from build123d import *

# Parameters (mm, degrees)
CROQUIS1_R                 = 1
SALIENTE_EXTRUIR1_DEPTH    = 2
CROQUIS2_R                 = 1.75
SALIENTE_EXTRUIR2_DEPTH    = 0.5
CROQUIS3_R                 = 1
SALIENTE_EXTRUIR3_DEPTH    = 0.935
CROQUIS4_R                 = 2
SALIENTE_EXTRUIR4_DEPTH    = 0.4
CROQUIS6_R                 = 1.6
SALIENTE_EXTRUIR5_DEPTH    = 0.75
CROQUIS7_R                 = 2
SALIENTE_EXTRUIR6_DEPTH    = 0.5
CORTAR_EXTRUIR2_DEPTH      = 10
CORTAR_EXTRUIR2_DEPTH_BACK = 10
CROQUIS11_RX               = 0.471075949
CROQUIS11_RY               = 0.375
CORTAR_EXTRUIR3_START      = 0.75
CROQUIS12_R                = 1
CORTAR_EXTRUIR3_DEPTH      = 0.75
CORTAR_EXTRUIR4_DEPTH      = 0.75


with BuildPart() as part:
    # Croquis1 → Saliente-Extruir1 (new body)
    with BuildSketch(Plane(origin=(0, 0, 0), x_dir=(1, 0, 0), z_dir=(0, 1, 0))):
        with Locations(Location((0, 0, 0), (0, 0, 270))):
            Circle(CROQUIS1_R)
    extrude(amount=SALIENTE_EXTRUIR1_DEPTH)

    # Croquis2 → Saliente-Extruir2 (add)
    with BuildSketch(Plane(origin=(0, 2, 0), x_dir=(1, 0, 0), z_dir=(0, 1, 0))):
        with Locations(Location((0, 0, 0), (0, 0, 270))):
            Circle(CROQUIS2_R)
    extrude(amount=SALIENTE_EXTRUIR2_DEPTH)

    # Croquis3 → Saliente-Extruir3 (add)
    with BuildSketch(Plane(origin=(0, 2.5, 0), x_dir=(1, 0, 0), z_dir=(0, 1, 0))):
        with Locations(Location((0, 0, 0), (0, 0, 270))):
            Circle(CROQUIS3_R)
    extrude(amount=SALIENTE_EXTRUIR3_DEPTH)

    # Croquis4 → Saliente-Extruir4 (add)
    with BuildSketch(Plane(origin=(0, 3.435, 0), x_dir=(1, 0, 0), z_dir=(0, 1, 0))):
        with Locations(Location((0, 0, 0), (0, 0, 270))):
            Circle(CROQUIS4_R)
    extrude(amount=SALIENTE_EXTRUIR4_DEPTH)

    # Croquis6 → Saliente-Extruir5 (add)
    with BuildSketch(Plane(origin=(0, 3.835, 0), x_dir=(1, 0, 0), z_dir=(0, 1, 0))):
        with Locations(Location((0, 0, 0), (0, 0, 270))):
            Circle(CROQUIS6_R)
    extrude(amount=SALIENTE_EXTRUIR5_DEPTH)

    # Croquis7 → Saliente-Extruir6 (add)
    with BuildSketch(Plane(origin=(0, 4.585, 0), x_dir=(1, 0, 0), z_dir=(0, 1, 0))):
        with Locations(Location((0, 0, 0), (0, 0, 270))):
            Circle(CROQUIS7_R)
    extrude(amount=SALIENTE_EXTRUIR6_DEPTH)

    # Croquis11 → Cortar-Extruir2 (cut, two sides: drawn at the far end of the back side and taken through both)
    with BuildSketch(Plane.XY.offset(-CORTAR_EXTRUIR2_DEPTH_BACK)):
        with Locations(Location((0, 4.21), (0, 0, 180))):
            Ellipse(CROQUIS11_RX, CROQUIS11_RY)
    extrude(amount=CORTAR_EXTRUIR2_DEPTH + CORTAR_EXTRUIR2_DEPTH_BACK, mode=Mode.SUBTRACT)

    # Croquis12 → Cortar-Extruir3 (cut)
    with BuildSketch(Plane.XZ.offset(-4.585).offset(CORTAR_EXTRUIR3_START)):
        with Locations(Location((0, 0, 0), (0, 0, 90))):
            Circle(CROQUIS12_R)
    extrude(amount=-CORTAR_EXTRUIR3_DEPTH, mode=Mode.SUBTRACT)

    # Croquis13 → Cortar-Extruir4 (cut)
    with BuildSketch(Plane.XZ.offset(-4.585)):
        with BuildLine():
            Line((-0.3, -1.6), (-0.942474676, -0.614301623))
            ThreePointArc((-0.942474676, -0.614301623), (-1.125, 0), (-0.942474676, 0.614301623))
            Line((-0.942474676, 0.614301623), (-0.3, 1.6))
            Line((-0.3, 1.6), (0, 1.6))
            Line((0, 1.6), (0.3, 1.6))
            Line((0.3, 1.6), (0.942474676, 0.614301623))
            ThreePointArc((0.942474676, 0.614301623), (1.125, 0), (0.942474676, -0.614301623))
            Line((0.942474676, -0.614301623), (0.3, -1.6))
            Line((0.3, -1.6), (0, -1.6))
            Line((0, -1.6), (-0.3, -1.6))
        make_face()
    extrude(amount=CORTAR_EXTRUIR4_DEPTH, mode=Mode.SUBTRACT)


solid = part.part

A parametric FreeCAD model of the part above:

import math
import FreeCAD as App
import Part
import Sketcher

V = App.Vector

doc = App.newDocument("Part")
params = doc.addObject("Spreadsheet::Sheet", "Params")
for row, (alias, value) in enumerate([
    ("sketch1_diameter", "2 mm"),
    ("pad1_length", "2 mm"),
    ("sketch2_diameter", "3.5 mm"),
    ("pad2_length", "0.5 mm"),
    ("sketch3_diameter", "2 mm"),
    ("pad3_length", "0.935 mm"),
    ("sketch4_diameter", "4 mm"),
    ("pad4_length", "0.4 mm"),
    ("sketch5_diameter", "3.2 mm"),
    ("pad5_length", "0.75 mm"),
    ("sketch6_diameter", "4 mm"),
    ("pad6_length", "0.5 mm"),
    ("sketch8_diameter", "2 mm"),
    ("pocket2_length", "0.75 mm"),
    ("sketch9_width", "0.6 mm"),
    ("pocket3_length", "0.75 mm"),
], start=1):
    params.set(f"A{row}", alias)
    params.set(f"B{row}", "=" + value)
    params.setAlias(f"B{row}", alias)

body = doc.addObject("PartDesign::Body", "Body")

# Sketch on XZ plane
sketch1 = doc.addObject("Sketcher::SketchObject", "Sketch")
body.addObject(sketch1)
sketch1.AttachmentSupport = (doc.XZ_Plane, [""])
sketch1.MapMode = "FlatFace"
sketch1.addGeometry(Part.Circle(V(0, 0, 0), V(0, 0, 1), 1), False)
sketch1.addConstraint(Sketcher.Constraint("Coincident", 0, 3, -1, 1))
sketch1.addConstraint(Sketcher.Constraint("Diameter", 0, 2.0))
sketch1.setExpression("Constraints[1]", "Params.sketch1_diameter")
pad1 = doc.addObject("PartDesign::Pad", "Pad")
body.addObject(pad1)
pad1.Profile = sketch1
pad1.setExpression("Length", "Params.pad1_length")
pad1.Reversed = True

# Sketch on XZ plane
sketch2 = doc.addObject("Sketcher::SketchObject", "Sketch001")
body.addObject(sketch2)
sketch2.AttachmentSupport = (doc.XZ_Plane, [""])
sketch2.MapMode = "FlatFace"
sketch2.AttachmentOffset = App.Placement(V(0, 0, -2), App.Rotation())
sketch2.addGeometry(Part.Circle(V(0, 0, 0), V(0, 0, 1), 1.8), False)
sketch2.addConstraint(Sketcher.Constraint("Coincident", 0, 3, -1, 1))
sketch2.addConstraint(Sketcher.Constraint("Diameter", 0, 3.5))
sketch2.setExpression("Constraints[1]", "Params.sketch2_diameter")
pad2 = doc.addObject("PartDesign::Pad", "Pad001")
body.addObject(pad2)
pad2.Profile = sketch2
pad2.setExpression("Length", "Params.pad2_length")
pad2.Reversed = True

# Sketch on XZ plane
sketch3 = doc.addObject("Sketcher::SketchObject", "Sketch002")
body.addObject(sketch3)
sketch3.AttachmentSupport = (doc.XZ_Plane, [""])
sketch3.MapMode = "FlatFace"
sketch3.AttachmentOffset = App.Placement(V(0, 0, -2.5), App.Rotation())
sketch3.addGeometry(Part.Circle(V(0, 0, 0), V(0, 0, 1), 1), False)
sketch3.addConstraint(Sketcher.Constraint("Coincident", 0, 3, -1, 1))
sketch3.addConstraint(Sketcher.Constraint("Diameter", 0, 2.0))
sketch3.setExpression("Constraints[1]", "Params.sketch3_diameter")
pad3 = doc.addObject("PartDesign::Pad", "Pad002")
body.addObject(pad3)
pad3.Profile = sketch3
pad3.setExpression("Length", "Params.pad3_length")
pad3.Reversed = True

# Sketch on XZ plane
sketch4 = doc.addObject("Sketcher::SketchObject", "Sketch003")
body.addObject(sketch4)
sketch4.AttachmentSupport = (doc.XZ_Plane, [""])
sketch4.MapMode = "FlatFace"
sketch4.AttachmentOffset = App.Placement(V(0, 0, -3.435), App.Rotation())
sketch4.addGeometry(Part.Circle(V(0, 0, 0), V(0, 0, 1), 2), False)
sketch4.addConstraint(Sketcher.Constraint("Coincident", 0, 3, -1, 1))
sketch4.addConstraint(Sketcher.Constraint("Diameter", 0, 4.0))
sketch4.setExpression("Constraints[1]", "Params.sketch4_diameter")
pad4 = doc.addObject("PartDesign::Pad", "Pad003")
body.addObject(pad4)
pad4.Profile = sketch4
pad4.setExpression("Length", "Params.pad4_length")
pad4.Reversed = True

# Sketch on XZ plane
sketch5 = doc.addObject("Sketcher::SketchObject", "Sketch004")
body.addObject(sketch5)
sketch5.AttachmentSupport = (doc.XZ_Plane, [""])
sketch5.MapMode = "FlatFace"
sketch5.AttachmentOffset = App.Placement(V(0, 0, -3.835), App.Rotation())
sketch5.addGeometry(Part.Circle(V(0, 0, 0), V(0, 0, 1), 1.6), False)
sketch5.addConstraint(Sketcher.Constraint("Coincident", 0, 3, -1, 1))
sketch5.addConstraint(Sketcher.Constraint("Diameter", 0, 3.2))
sketch5.setExpression("Constraints[1]", "Params.sketch5_diameter")
pad5 = doc.addObject("PartDesign::Pad", "Pad004")
body.addObject(pad5)
pad5.Profile = sketch5
pad5.setExpression("Length", "Params.pad5_length")
pad5.Reversed = True

# Sketch on XZ plane
sketch6 = doc.addObject("Sketcher::SketchObject", "Sketch005")
body.addObject(sketch6)
sketch6.AttachmentSupport = (doc.XZ_Plane, [""])
sketch6.MapMode = "FlatFace"
sketch6.AttachmentOffset = App.Placement(V(0, 0, -4.585), App.Rotation())
sketch6.addGeometry(Part.Circle(V(0, 0, 0), V(0, 0, 1), 2), False)
sketch6.addConstraint(Sketcher.Constraint("Coincident", 0, 3, -1, 1))
sketch6.addConstraint(Sketcher.Constraint("Diameter", 0, 4.0))
sketch6.setExpression("Constraints[1]", "Params.sketch6_diameter")
pad6 = doc.addObject("PartDesign::Pad", "Pad005")
body.addObject(pad6)
pad6.Profile = sketch6
pad6.setExpression("Length", "Params.pad6_length")
pad6.Reversed = True

# Sketch on XY plane
sketch7 = doc.addObject("Sketcher::SketchObject", "Sketch006")
body.addObject(sketch7)
sketch7.AttachmentSupport = (doc.XY_Plane, [""])
sketch7.MapMode = "FlatFace"
sketch7.addGeometry(Part.Ellipse(V(-0.471076, 4.21, 0), V(0, 3.835, 0), V(0, 4.21, 0)), False)
sketch7.addConstraint(Sketcher.Constraint("Block", 0))
pocket1 = doc.addObject("PartDesign::Pocket", "Pocket")
body.addObject(pocket1)
pocket1.Profile = sketch7
pocket1.Type = "ThroughAll"
pocket1.Midplane = True

# Sketch on XZ plane
sketch8 = doc.addObject("Sketcher::SketchObject", "Sketch007")
body.addObject(sketch8)
sketch8.AttachmentSupport = (doc.XZ_Plane, [""])
sketch8.MapMode = "FlatFace"
sketch8.AttachmentOffset = App.Placement(V(0, 0, -3.835), App.Rotation())
sketch8.addGeometry(Part.Circle(V(0, 0, 0), V(0, 0, 1), 1), False)
sketch8.addConstraint(Sketcher.Constraint("Coincident", 0, 3, -1, 1))
sketch8.addConstraint(Sketcher.Constraint("Diameter", 0, 2.0))
sketch8.setExpression("Constraints[1]", "Params.sketch8_diameter")
pocket2 = doc.addObject("PartDesign::Pocket", "Pocket001")
body.addObject(pocket2)
pocket2.Profile = sketch8
pocket2.setExpression("Length", "Params.pocket2_length")

# Sketch on XZ plane
sketch9 = doc.addObject("Sketcher::SketchObject", "Sketch008")
body.addObject(sketch9)
sketch9.AttachmentSupport = (doc.XZ_Plane, [""])
sketch9.MapMode = "FlatFace"
sketch9.AttachmentOffset = App.Placement(V(0, 0, -4.585), App.Rotation())
sketch9.addGeometry(Part.LineSegment(V(-0.9, -0.6, 0), V(-0.3, -1.6, 0)), False)
sketch9.addGeometry(Part.LineSegment(V(-0.3, -1.6, 0), V(0.3, -1.6, 0)), False)
sketch9.addGeometry(Part.LineSegment(V(0.3, -1.6, 0), V(0.9, -0.6, 0)), False)
sketch9.addGeometry(Part.ArcOfCircle(Part.Circle(V(0, 0, 0), V(0, 0, 1), 1.1), math.radians(-33), math.radians(33)), False)
sketch9.addGeometry(Part.LineSegment(V(0.9, 0.6, 0), V(0.3, 1.6, 0)), False)
sketch9.addGeometry(Part.LineSegment(V(0.3, 1.6, 0), V(-0.3, 1.6, 0)), False)
sketch9.addGeometry(Part.LineSegment(V(-0.3, 1.6, 0), V(-0.9, 0.6, 0)), False)
sketch9.addGeometry(Part.ArcOfCircle(Part.Circle(V(0, 0, 0), V(0, 0, 1), 1.1), math.radians(147), math.radians(213)), False)
sketch9.addConstraint(Sketcher.Constraint("Coincident", 0, 2, 1, 1))
sketch9.addConstraint(Sketcher.Constraint("Coincident", 1, 2, 2, 1))
sketch9.addConstraint(Sketcher.Constraint("Tangent", 2, 2, 3, 1))
sketch9.addConstraint(Sketcher.Constraint("Tangent", 3, 2, 4, 1))
sketch9.addConstraint(Sketcher.Constraint("Coincident", 4, 2, 5, 1))
sketch9.addConstraint(Sketcher.Constraint("Coincident", 5, 2, 6, 1))
sketch9.addConstraint(Sketcher.Constraint("Tangent", 6, 2, 7, 1))
sketch9.addConstraint(Sketcher.Constraint("Tangent", 7, 2, 0, 1))
sketch9.addConstraint(Sketcher.Constraint("Horizontal", 1))
sketch9.addConstraint(Sketcher.Constraint("Horizontal", 5))
sketch9.addConstraint(Sketcher.Constraint("Coincident", 3, 3, -1, 1))
sketch9.addConstraint(Sketcher.Constraint("Coincident", 7, 3, -1, 1))
sketch9.addConstraint(Sketcher.Constraint("Equal", 3, 7))
sketch9.addConstraint(Sketcher.Constraint("Symmetric", 0, 2, 4, 2, -1, 1))
sketch9.addConstraint(Sketcher.Constraint("Parallel", 2, 6))
sketch9.addConstraint(Sketcher.Constraint("Horizontal", 3, 2, 6, 2))
sketch9.addConstraint(Sketcher.Constraint("DistanceX", 1, 1, 1, 2, 0.6))
sketch9.addConstraint(Sketcher.Constraint("Radius", 3, 1.125))
sketch9.addConstraint(Sketcher.Constraint("DistanceY", 0, 2, -1, 1, 1.6))
sketch9.setExpression("Constraints[16]", "Params.sketch9_width")
pocket3 = doc.addObject("PartDesign::Pocket", "Pocket002")
body.addObject(pocket3)
pocket3.Profile = sketch9
pocket3.setExpression("Length", "Params.pocket3_length")
pocket3.Reversed = True

doc.recompute()
